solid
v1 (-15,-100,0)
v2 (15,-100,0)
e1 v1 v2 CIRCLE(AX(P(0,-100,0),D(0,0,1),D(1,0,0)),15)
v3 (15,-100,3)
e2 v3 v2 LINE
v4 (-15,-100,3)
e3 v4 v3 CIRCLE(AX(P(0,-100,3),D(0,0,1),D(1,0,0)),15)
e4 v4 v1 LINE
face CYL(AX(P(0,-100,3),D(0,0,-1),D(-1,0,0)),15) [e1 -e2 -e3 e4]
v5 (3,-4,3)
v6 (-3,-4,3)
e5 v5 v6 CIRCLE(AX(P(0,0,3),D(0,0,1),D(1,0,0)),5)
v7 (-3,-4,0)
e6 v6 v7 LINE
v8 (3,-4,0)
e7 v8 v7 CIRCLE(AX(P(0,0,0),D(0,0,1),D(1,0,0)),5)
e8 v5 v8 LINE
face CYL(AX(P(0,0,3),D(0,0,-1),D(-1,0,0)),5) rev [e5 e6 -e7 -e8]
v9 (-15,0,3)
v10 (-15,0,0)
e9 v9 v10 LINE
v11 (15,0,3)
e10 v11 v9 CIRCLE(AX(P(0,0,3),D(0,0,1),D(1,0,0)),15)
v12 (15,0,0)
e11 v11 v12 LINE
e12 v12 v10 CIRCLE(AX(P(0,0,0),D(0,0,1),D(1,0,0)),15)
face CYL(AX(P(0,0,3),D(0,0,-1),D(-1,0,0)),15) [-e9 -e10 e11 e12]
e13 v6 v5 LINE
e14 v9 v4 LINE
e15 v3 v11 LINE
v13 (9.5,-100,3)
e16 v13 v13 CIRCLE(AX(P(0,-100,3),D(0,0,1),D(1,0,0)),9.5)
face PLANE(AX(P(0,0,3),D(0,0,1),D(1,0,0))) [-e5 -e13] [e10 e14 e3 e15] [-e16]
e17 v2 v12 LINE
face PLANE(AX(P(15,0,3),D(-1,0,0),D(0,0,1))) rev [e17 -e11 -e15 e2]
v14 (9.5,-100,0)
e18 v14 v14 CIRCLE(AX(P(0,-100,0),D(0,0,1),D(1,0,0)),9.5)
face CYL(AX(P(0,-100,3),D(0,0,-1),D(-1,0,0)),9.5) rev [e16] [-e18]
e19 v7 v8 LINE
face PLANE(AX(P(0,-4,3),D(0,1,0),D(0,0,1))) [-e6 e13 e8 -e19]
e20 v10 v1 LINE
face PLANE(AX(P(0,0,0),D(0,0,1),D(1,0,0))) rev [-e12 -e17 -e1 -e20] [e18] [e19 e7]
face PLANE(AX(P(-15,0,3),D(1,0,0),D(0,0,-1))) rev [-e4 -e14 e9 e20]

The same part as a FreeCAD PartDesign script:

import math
import FreeCAD as App
import Part
import Sketcher
from FreeCAD import Vector
Q = App.Units.Quantity

doc = App.newDocument("Part")
body = doc.addObject("PartDesign::Body", "Body")

# Sketch on XY plane
sketch1 = body.newObject("Sketcher::SketchObject", "Sketch")
sketch1.AttachmentSupport = (doc.getObject("XY_Plane"), [""])
sketch1.MapMode = "FlatFace"
sketch1.addGeometry(Part.LineSegment(Vector(-15, 0, 0), Vector(-15, -100, 0)), False)
sketch1.addGeometry(Part.ArcOfCircle(Part.Circle(Vector(0, -100, 0), Vector(0, 0, 1), 15), math.radians(180), math.radians(360)), False)
sketch1.addGeometry(Part.LineSegment(Vector(15, -100, 0), Vector(15, 0, 0)), False)
sketch1.addGeometry(Part.ArcOfCircle(Part.Circle(Vector(0, 0, 0), Vector(0, 0, 1), 15), math.radians(0), math.radians(180)), False)
sketch1.addGeometry(Part.Circle(Vector(0, -100, 0), Vector(0, 0, 1), 10), False)
sketch1.addGeometry(Part.ArcOfCircle(Part.Circle(Vector(0, 0, 0), Vector(0, 0, 1), 5), math.radians(-53), math.radians(233)), False)
sketch1.addGeometry(Part.LineSegment(Vector(3, -4, 0), Vector(-3, -4, 0)), False)
sketch1.addConstraint(Sketcher.Constraint("Tangent", 0, 2, 1, 1))
sketch1.addConstraint(Sketcher.Constraint("Tangent", 1, 2, 2, 1))
sketch1.addConstraint(Sketcher.Constraint("Tangent", 2, 2, 3, 1))
sketch1.addConstraint(Sketcher.Constraint("Tangent", 3, 2, 0, 1))
sketch1.addConstraint(Sketcher.Constraint("Coincident", 5, 1, 6, 1))
sketch1.addConstraint(Sketcher.Constraint("Coincident", 6, 2, 5, 2))
sketch1.addConstraint(Sketcher.Constraint("Vertical", 0))
sketch1.addConstraint(Sketcher.Constraint("Vertical", 2))
sketch1.addConstraint(Sketcher.Constraint("Horizontal", 6))
sketch1.addConstraint(Sketcher.Constraint("Coincident", 3, 3, -1, 1))
sketch1.addConstraint(Sketcher.Constraint("Coincident", 5, 3, -1, 1))
sketch1.addConstraint(Sketcher.Constraint("Coincident", 4, 3, 1, 3))
sketch1.addConstraint(Sketcher.Constraint("Diameter", 4, Q("19 mm")))
sketch1.addConstraint(Sketcher.Constraint("Radius", 1, Q("15 mm")))
sketch1.addConstraint(Sketcher.Constraint("Radius", 5, Q("5 mm")))
sketch1.addConstraint(Sketcher.Constraint("DistanceX", 6, 2, 6, 1, Q("6 mm")))
sketch1.addConstraint(Sketcher.Constraint("DistanceY", 0, 2, 0, 1, Q("100 mm")))
pad1 = body.newObject("PartDesign::Pad", "Pad")
pad1.Profile = sketch1
pad1.Length = 3

doc.recompute()
